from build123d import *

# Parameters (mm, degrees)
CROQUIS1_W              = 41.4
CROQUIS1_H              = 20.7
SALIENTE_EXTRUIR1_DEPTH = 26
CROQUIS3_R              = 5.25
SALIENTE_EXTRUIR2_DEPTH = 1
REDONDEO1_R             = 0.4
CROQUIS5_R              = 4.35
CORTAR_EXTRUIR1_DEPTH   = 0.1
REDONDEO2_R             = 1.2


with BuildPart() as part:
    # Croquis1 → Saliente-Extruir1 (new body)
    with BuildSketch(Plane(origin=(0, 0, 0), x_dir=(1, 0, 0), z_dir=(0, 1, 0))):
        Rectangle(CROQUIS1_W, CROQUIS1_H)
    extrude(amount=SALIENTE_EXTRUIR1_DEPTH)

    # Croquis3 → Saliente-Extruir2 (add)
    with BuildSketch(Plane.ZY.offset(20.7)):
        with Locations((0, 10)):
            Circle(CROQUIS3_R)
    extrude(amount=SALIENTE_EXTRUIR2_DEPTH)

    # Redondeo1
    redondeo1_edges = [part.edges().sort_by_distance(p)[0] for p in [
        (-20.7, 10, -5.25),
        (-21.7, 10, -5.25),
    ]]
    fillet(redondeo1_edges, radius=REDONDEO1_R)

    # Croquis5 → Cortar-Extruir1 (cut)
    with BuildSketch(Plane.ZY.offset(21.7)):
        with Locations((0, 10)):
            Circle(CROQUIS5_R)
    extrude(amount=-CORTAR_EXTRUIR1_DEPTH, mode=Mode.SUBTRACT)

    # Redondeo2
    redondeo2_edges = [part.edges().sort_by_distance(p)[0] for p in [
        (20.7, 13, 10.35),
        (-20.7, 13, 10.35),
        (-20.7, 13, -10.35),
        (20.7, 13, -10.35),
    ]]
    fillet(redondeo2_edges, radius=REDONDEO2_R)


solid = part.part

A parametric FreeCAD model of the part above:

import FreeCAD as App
import Part
import Sketcher

V = App.Vector


def edges_at(feature, points):
    """Names of the edges that pass closest to the given points."""
    edges = feature.Shape.Edges
    near = lambda p: min(range(len(edges)), key=lambda i: edges[i].distToShape(Part.Vertex(*p))[0])
    return sorted({f"Edge{near(p) + 1}" for p in points})

doc = App.newDocument("Part")
body = doc.addObject("PartDesign::Body", "Body")

# Sketch on XZ plane
sketch1 = body.newObject("Sketcher::SketchObject", "Sketch")
sketch1.AttachmentSupport = (doc.getObject("XZ_Plane"), [""])
sketch1.MapMode = "FlatFace"
sketch1.addGeometry(Part.LineSegment(V(-21, -10, 0), V(-21, 10, 0)), False)
sketch1.addGeometry(Part.LineSegment(V(-21, 10, 0), V(21, 10, 0)), False)
sketch1.addGeometry(Part.LineSegment(V(21, 10, 0), V(21, -10, 0)), False)
sketch1.addGeometry(Part.LineSegment(V(21, -10, 0), V(-21, -10, 0)), False)
sketch1.addConstraint(Sketcher.Constraint("Coincident", 0, 2, 1, 1))
sketch1.addConstraint(Sketcher.Constraint("Coincident", 1, 2, 2, 1))
sketch1.addConstraint(Sketcher.Constraint("Coincident", 2, 2, 3, 1))
sketch1.addConstraint(Sketcher.Constraint("Coincident", 3, 2, 0, 1))
sketch1.addConstraint(Sketcher.Constraint("Vertical", 0))
sketch1.addConstraint(Sketcher.Constraint("Horizontal", 1))
sketch1.addConstraint(Sketcher.Constraint("Vertical", 2))
sketch1.addConstraint(Sketcher.Constraint("Horizontal", 3))
sketch1.addConstraint(Sketcher.Constraint("Symmetric", 0, 2, 2, 2, -1, 1))
sketch1.addConstraint(Sketcher.Constraint("DistanceX", 1, 1, 1, 2, 41.4))
sketch1.addConstraint(Sketcher.Constraint("DistanceY", 0, 1, 0, 2, 20.7))
pad1 = body.newObject("PartDesign::Pad", "Pad")
pad1.Profile = sketch1
pad1.Length = 26
pad1.Reversed = True

# Sketch on YZ plane
sketch2 = body.newObject("Sketcher::SketchObject", "Sketch001")
sketch2.AttachmentSupport = (doc.getObject("YZ_Plane"), [""])
sketch2.MapMode = "FlatFace"
sketch2.AttachmentOffset = App.Placement(V(0, 0, -20.7), App.Rotation())
sketch2.addGeometry(Part.Circle(V(10, 0, 0), V(0, 0, 1), 5), False)
sketch2.addConstraint(Sketcher.Constraint("PointOnObject", 0, 3, -1))
sketch2.addConstraint(Sketcher.Constraint("Diameter", 0, 10.5))
sketch2.addConstraint(Sketcher.Constraint("DistanceX", -1, 1, 0, 3, 10.0))
pad2 = body.newObject("PartDesign::Pad", "Pad001")
pad2.Profile = sketch2
pad2.Length = 1
pad2.Reversed = True
doc.recompute()

fillet = body.newObject("PartDesign::Fillet", "Fillet")
fillet.Base = (pad2, edges_at(pad2, [(-20.7, 10, -5.25), (-21.7, 10, -5.25)]))
fillet.Radius = 0.4

# Sketch on YZ plane
sketch3 = body.newObject("Sketcher::SketchObject", "Sketch002")
sketch3.AttachmentSupport = (doc.getObject("YZ_Plane"), [""])
sketch3.MapMode = "FlatFace"
sketch3.AttachmentOffset = App.Placement(V(0, 0, -21.7), App.Rotation())
sketch3.addGeometry(Part.Circle(V(10, 0, 0), V(0, 0, 1), 4.3), False)
sketch3.addConstraint(Sketcher.Constraint("PointOnObject", 0, 3, -1))
sketch3.addConstraint(Sketcher.Constraint("Diameter", 0, 8.7))
sketch3.addConstraint(Sketcher.Constraint("DistanceX", -1, 1, 0, 3, 10.0))
pocket1 = body.newObject("PartDesign::Pocket", "Pocket")
pocket1.Profile = sketch3
pocket1.Length = 0.1
pocket1.Reversed = True
doc.recompute()

fillet2 = body.newObject("PartDesign::Fillet", "Fillet001")
fillet2.Base = (pocket1, edges_at(pocket1, [
    (20.7, 13, 10.35),
    (-20.7, 13, 10.35),
    (-20.7, 13, -10.35),
    (20.7, 13, -10.35),
]))
fillet2.Radius = 1.2

doc.recompute()
